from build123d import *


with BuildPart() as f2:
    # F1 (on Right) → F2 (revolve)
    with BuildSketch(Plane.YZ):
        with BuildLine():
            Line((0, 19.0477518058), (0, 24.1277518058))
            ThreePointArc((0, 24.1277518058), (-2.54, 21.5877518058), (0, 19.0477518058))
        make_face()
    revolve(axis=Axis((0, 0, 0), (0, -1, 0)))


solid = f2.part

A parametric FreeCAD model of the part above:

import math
import FreeCAD as App
import Part
import Sketcher

V = App.Vector
Q = App.Units.Quantity

doc = App.newDocument("Part")
body = doc.addObject("PartDesign::Body", "Body")

# Sketch on YZ plane
sketch1 = body.newObject("Sketcher::SketchObject", "Sketch")
sketch1.AttachmentSupport = (doc.getObject("YZ_Plane"), [""])
sketch1.MapMode = "FlatFace"
sketch1.addGeometry(Part.LineSegment(V(0, 19, 0), V(0, 24.1, 0)), False)
sketch1.addGeometry(Part.ArcOfCircle(Part.Circle(V(0, 21.6, 0), V(0, 0, 1), 2.5), math.radians(90), math.radians(270)), False)
sketch1.addConstraint(Sketcher.Constraint("Coincident", 0, 1, 1, 2))
sketch1.addConstraint(Sketcher.Constraint("Coincident", 1, 1, 0, 2))
sketch1.addConstraint(Sketcher.Constraint("Vertical", 0))
sketch1.addConstraint(Sketcher.Constraint("PointOnObject", 1, 3, -2))
sketch1.addConstraint(Sketcher.Constraint("PointOnObject", 0, 1, -2))
sketch1.addConstraint(Sketcher.Constraint("Radius", 1, Q("0.1 in")))
sketch1.addConstraint(Sketcher.Constraint("DistanceY", -1, 1, 1, 3, 21.587752))
revolution = body.newObject("PartDesign::Revolution", "Revolution")
revolution.Profile = sketch1
revolution.ReferenceAxis = (sketch1, ["H_Axis"])
revolution.Angle = 360

doc.recompute()
